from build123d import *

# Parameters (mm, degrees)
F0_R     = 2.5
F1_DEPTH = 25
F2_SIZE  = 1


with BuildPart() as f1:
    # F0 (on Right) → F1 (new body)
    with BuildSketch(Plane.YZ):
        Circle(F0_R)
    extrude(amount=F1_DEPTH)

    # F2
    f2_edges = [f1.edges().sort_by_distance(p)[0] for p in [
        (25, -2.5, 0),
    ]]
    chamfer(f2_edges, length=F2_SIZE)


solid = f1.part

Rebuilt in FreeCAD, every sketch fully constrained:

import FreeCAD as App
import Part
import Sketcher


def edges_at(feature, points):
    """Names of the edges that pass closest to the given points."""
    edges = feature.Shape.Edges
    near = lambda p: min(range(len(edges)), key=lambda i: edges[i].distToShape(Part.Vertex(*p))[0])
    return sorted({f"Edge{near(p) + 1}" for p in points})

doc = App.newDocument("Part")
body = doc.addObject("PartDesign::Body", "Body")

# Sketch on YZ plane
sketch1 = doc.addObject("Sketcher::SketchObject", "Sketch")
body.addObject(sketch1)
sketch1.AttachmentSupport = (doc.YZ_Plane, [""])
sketch1.MapMode = "FlatFace"
sketch1.addGeometry(Part.Circle(App.Vector(0, 0, 0), App.Vector(0, 0, 1), 2.5), False)
sketch1.addConstraint(Sketcher.Constraint("Coincident", 0, 3, -1, 1))
sketch1.addConstraint(Sketcher.Constraint("Diameter", 0, 5.0))
pad1 = doc.addObject("PartDesign::Pad", "Pad")
body.addObject(pad1)
pad1.Profile = sketch1
pad1.Length = 25
doc.recompute()

chamfer = doc.addObject("PartDesign::Chamfer", "Chamfer")
body.addObject(chamfer)
chamfer.Base = (pad1, edges_at(pad1, [(25, -2.5, 0)]))
chamfer.Size = 1

doc.recompute()
